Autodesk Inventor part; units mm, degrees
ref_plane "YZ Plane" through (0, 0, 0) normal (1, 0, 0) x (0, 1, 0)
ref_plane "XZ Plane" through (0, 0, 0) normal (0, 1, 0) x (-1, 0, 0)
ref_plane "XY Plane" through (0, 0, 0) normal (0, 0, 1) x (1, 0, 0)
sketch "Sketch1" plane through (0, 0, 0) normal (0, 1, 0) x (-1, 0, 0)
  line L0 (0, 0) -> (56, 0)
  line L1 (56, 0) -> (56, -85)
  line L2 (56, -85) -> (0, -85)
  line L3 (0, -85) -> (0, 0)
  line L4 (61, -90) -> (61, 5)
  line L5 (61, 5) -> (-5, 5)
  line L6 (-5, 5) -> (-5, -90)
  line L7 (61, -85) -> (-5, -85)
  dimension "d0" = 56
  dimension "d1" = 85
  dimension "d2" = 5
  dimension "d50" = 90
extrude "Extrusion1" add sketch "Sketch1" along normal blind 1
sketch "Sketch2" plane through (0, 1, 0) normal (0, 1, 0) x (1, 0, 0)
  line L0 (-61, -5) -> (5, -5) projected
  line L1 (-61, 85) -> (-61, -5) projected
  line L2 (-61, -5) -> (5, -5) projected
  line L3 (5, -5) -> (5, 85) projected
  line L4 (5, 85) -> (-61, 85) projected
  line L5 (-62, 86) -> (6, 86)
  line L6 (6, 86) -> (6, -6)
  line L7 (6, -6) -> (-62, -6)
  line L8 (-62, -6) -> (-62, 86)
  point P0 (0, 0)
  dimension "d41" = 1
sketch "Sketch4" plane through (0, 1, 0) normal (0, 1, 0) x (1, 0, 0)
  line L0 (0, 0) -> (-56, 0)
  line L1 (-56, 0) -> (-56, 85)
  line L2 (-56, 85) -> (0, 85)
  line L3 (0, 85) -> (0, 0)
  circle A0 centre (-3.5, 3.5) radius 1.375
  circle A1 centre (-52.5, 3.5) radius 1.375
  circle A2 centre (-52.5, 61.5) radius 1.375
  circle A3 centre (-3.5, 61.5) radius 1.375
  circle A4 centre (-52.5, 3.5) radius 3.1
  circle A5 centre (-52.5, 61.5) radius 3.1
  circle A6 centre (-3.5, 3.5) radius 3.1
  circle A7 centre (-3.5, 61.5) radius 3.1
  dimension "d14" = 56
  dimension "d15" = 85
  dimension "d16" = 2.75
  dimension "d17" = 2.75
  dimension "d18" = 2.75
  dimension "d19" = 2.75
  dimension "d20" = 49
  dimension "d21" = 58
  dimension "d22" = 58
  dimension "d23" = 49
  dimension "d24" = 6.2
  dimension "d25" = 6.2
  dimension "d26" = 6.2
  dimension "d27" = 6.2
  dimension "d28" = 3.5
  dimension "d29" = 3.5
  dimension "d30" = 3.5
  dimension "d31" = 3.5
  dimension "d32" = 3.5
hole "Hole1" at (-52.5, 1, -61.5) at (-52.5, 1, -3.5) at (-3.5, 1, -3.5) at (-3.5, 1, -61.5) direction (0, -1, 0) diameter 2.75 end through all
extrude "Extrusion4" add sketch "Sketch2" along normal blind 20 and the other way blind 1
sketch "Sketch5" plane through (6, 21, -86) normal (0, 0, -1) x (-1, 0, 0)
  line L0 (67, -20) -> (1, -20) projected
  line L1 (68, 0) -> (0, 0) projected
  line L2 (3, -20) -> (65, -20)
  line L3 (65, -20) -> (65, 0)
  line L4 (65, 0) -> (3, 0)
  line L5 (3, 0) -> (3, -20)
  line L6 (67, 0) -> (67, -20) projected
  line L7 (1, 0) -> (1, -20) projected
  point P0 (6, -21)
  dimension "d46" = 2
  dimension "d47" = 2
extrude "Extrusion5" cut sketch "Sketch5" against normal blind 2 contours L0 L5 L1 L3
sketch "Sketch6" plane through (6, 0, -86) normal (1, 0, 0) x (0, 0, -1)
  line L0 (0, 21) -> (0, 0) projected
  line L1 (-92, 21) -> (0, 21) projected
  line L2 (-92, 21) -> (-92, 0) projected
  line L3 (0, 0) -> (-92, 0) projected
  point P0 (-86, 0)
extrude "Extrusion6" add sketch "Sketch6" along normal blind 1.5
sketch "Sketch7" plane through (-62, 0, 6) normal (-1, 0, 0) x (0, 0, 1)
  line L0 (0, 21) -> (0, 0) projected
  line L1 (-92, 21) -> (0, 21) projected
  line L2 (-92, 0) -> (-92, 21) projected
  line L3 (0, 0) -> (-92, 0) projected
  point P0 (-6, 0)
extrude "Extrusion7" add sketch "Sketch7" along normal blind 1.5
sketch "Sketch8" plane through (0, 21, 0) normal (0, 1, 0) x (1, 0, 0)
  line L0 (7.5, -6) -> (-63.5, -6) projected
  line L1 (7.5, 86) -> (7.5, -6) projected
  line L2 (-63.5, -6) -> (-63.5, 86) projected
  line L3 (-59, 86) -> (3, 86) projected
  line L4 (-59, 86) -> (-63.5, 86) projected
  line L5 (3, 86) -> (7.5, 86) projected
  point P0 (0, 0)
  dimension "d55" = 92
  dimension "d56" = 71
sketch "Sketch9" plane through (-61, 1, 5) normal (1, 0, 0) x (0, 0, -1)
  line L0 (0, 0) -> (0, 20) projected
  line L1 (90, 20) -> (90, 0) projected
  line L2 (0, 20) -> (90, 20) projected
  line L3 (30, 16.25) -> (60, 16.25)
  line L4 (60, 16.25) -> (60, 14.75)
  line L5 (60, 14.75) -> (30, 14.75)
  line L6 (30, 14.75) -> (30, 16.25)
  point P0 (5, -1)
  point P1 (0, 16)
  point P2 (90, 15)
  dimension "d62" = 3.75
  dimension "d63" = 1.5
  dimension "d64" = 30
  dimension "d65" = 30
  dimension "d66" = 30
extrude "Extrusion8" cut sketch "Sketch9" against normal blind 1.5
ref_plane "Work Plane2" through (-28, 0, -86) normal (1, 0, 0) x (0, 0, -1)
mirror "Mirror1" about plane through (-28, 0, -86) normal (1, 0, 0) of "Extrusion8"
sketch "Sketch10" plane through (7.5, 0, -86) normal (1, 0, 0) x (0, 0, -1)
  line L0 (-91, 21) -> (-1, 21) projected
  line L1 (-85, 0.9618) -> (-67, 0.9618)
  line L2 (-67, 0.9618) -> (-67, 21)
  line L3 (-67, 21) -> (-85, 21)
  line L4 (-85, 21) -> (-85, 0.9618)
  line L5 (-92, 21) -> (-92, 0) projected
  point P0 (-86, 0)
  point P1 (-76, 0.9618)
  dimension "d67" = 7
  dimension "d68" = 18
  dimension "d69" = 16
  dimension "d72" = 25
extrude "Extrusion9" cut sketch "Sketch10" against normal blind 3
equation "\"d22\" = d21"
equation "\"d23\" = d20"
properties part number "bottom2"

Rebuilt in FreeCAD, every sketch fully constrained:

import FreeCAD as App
import Part
import Sketcher
Q = App.Units.Quantity

doc = App.newDocument("Part")
body = doc.addObject("PartDesign::Body", "Body")

# Sketch on XZ plane
sketch1 = body.newObject("Sketcher::SketchObject", "Sketch")
sketch1.AttachmentSupport = (doc.getObject("XZ_Plane"), [""])
sketch1.MapMode = "FlatFace"
sketch1.addGeometry(Part.LineSegment(App.Vector(5, -85, 0), App.Vector(-61, -85, 0)), False)
sketch1.addGeometry(Part.LineSegment(App.Vector(-61, -85, 0), App.Vector(-61, 5, 0)), False)
sketch1.addGeometry(Part.LineSegment(App.Vector(-61, 5, 0), App.Vector(5, 5, 0)), False)
sketch1.addGeometry(Part.LineSegment(App.Vector(5, 5, 0), App.Vector(5, -85, 0)), False)
sketch1.addConstraint(Sketcher.Constraint("Coincident", 0, 2, 1, 1))
sketch1.addConstraint(Sketcher.Constraint("Coincident", 1, 2, 2, 1))
sketch1.addConstraint(Sketcher.Constraint("Coincident", 2, 2, 3, 1))
sketch1.addConstraint(Sketcher.Constraint("Coincident", 3, 2, 0, 1))
sketch1.addConstraint(Sketcher.Constraint("Horizontal", 0))
sketch1.addConstraint(Sketcher.Constraint("Vertical", 1))
sketch1.addConstraint(Sketcher.Constraint("Horizontal", 2))
sketch1.addConstraint(Sketcher.Constraint("Vertical", 3))
sketch1.addConstraint(Sketcher.Constraint("DistanceY", 1, 1, 1, 2, Q("90 mm")))
sketch1.addConstraint(Sketcher.Constraint("DistanceY", 0, 2, -1, 1, Q("85 mm")))
sketch1.addConstraint(Sketcher.Constraint("DistanceX", -1, 1, 2, 2, Q("5 mm")))
sketch1.addConstraint(Sketcher.Constraint("DistanceX", 0, 2, 0, 1, Q("66 mm")))
pad1 = body.newObject("PartDesign::Pad", "Pad")
pad1.Profile = sketch1
pad1.Length = 1
pad1.Reversed = True

# Sketch on XZ plane
sketch2 = body.newObject("Sketcher::SketchObject", "Sketch001")
sketch2.AttachmentSupport = (doc.getObject("XZ_Plane"), [""])
sketch2.MapMode = "FlatFace"
sketch2.AttachmentOffset = App.Placement(App.Vector(0, 0, -1), App.Rotation())
sketch2.addGeometry(Part.Circle(App.Vector(-52.5, -61.5, 0), App.Vector(0, 0, 1), 1.4), False)
sketch2.addGeometry(Part.Circle(App.Vector(-52.5, -3.5, 0), App.Vector(0, 0, 1), 1.4), False)
sketch2.addGeometry(Part.Circle(App.Vector(-3.5, -3.5, 0), App.Vector(0, 0, 1), 1.4), False)
sketch2.addGeometry(Part.Circle(App.Vector(-3.5, -61.5, 0), App.Vector(0, 0, 1), 1.4), False)
sketch2.addConstraint(Sketcher.Constraint("Equal", 0, 1))
sketch2.addConstraint(Sketcher.Constraint("Equal", 1, 2))
sketch2.addConstraint(Sketcher.Constraint("Equal", 2, 3))
sketch2.addConstraint(Sketcher.Constraint("Horizontal", 1, 3, 2, 3))
sketch2.addConstraint(Sketcher.Constraint("Horizontal", 0, 3, 3, 3))
sketch2.addConstraint(Sketcher.Constraint("Vertical", 0, 3, 1, 3))
sketch2.addConstraint(Sketcher.Constraint("Vertical", 2, 3, 3, 3))
sketch2.addConstraint(Sketcher.Constraint("Diameter", 0, Q("2.75 mm")))
sketch2.addConstraint(Sketcher.Constraint("DistanceY", 0, 3, 1, 3, Q("58 mm")))
sketch2.addConstraint(Sketcher.Constraint("DistanceX", 1, 3, 2, 3, Q("49 mm")))
sketch2.addConstraint(Sketcher.Constraint("DistanceX", 0, 3, -1, 1, Q("52.5 mm")))
sketch2.addConstraint(Sketcher.Constraint("DistanceY", 0, 3, -1, 1, Q("61.5 mm")))
doc.recompute()
hole = body.newObject("PartDesign::Hole", "Hole")
hole.Profile = sketch2
hole.ThreadType = "None"
hole.Diameter = 2.75
hole.DepthType = "ThroughAll"
hole.Reversed = True

# Sketch on XZ plane
sketch3 = body.newObject("Sketcher::SketchObject", "Sketch002")
sketch3.AttachmentSupport = (doc.getObject("XZ_Plane"), [""])
sketch3.MapMode = "FlatFace"
sketch3.AttachmentOffset = App.Placement(App.Vector(0, 0, -1), App.Rotation())
sketch3.addGeometry(Part.LineSegment(App.Vector(6, -86, 0), App.Vector(-62, -86, 0)), False)
sketch3.addGeometry(Part.LineSegment(App.Vector(-62, -86, 0), App.Vector(-62, 6, 0)), False)
sketch3.addGeometry(Part.LineSegment(App.Vector(-62, 6, 0), App.Vector(6, 6, 0)), False)
sketch3.addGeometry(Part.LineSegment(App.Vector(6, 6, 0), App.Vector(6, -86, 0)), False)
sketch3.addGeometry(Part.LineSegment(App.Vector(5, 5, 0), App.Vector(-61, 5, 0)), False)
sketch3.addGeometry(Part.LineSegment(App.Vector(-61, 5, 0), App.Vector(-61, -85, 0)), False)
sketch3.addGeometry(Part.LineSegment(App.Vector(-61, -85, 0), App.Vector(5, -85, 0)), False)
sketch3.addGeometry(Part.LineSegment(App.Vector(5, -85, 0), App.Vector(5, 5, 0)), False)
sketch3.addConstraint(Sketcher.Constraint("Coincident", 0, 2, 1, 1))
sketch3.addConstraint(Sketcher.Constraint("Coincident", 1, 2, 2, 1))
sketch3.addConstraint(Sketcher.Constraint("Coincident", 2, 2, 3, 1))
sketch3.addConstraint(Sketcher.Constraint("Coincident", 3, 2, 0, 1))
sketch3.addConstraint(Sketcher.Constraint("Coincident", 4, 2, 5, 1))
sketch3.addConstraint(Sketcher.Constraint("Coincident", 5, 2, 6, 1))
sketch3.addConstraint(Sketcher.Constraint("Coincident", 6, 2, 7, 1))
sketch3.addConstraint(Sketcher.Constraint("Coincident", 7, 2, 4, 1))
sketch3.addConstraint(Sketcher.Constraint("Horizontal", 0))
sketch3.addConstraint(Sketcher.Constraint("Vertical", 1))
sketch3.addConstraint(Sketcher.Constraint("Horizontal", 2))
sketch3.addConstraint(Sketcher.Constraint("Vertical", 3))
sketch3.addConstraint(Sketcher.Constraint("Horizontal", 4))
sketch3.addConstraint(Sketcher.Constraint("Vertical", 5))
sketch3.addConstraint(Sketcher.Constraint("Horizontal", 6))
sketch3.addConstraint(Sketcher.Constraint("Vertical", 7))
sketch3.addConstraint(Sketcher.Constraint("DistanceX", 1, 2, 4, 2, Q("1 mm")))
sketch3.addConstraint(Sketcher.Constraint("DistanceY", 4, 2, 1, 2, Q("1 mm")))
sketch3.addConstraint(Sketcher.Constraint("DistanceY", 0, 2, 5, 2, Q("1 mm")))
sketch3.addConstraint(Sketcher.Constraint("DistanceX", 6, 2, 3, 2, Q("1 mm")))
sketch3.addConstraint(Sketcher.Constraint("DistanceX", 0, 2, 0, 1, Q("68 mm")))
sketch3.addConstraint(Sketcher.Constraint("DistanceY", 1, 1, 1, 2, Q("92 mm")))
sketch3.addConstraint(Sketcher.Constraint("DistanceX", 0, 2, -1, 1, Q("62 mm")))
sketch3.addConstraint(Sketcher.Constraint("DistanceY", 0, 2, -1, 1, Q("86 mm")))
pad2 = body.newObject("PartDesign::Pad", "Pad001")
pad2.Profile = sketch3
pad2.Type = "TwoLengths"
pad2.Length = 20
pad2.Length2 = 1
pad2.Reversed = True

# Sketch on XY plane
sketch4 = body.newObject("Sketcher::SketchObject", "Sketch003")
sketch4.AttachmentSupport = (doc.getObject("XY_Plane"), [""])
sketch4.MapMode = "FlatFace"
sketch4.AttachmentOffset = App.Placement(App.Vector(0, 0, -86), App.Rotation())
sketch4.addGeometry(Part.LineSegment(App.Vector(3, 1, 0), App.Vector(-59, 1, 0)), False)
sketch4.addGeometry(Part.LineSegment(App.Vector(-59, 1, 0), App.Vector(-59, 21, 0)), False)
sketch4.addGeometry(Part.LineSegment(App.Vector(-59, 21, 0), App.Vector(3, 21, 0)), False)
sketch4.addGeometry(Part.LineSegment(App.Vector(3, 21, 0), App.Vector(3, 1, 0)), False)
sketch4.addConstraint(Sketcher.Constraint("Coincident", 0, 2, 1, 1))
sketch4.addConstraint(Sketcher.Constraint("Coincident", 1, 2, 2, 1))
sketch4.addConstraint(Sketcher.Constraint("Coincident", 2, 2, 3, 1))
sketch4.addConstraint(Sketcher.Constraint("Coincident", 3, 2, 0, 1))
sketch4.addConstraint(Sketcher.Constraint("Horizontal", 0))
sketch4.addConstraint(Sketcher.Constraint("Vertical", 1))
sketch4.addConstraint(Sketcher.Constraint("Horizontal", 2))
sketch4.addConstraint(Sketcher.Constraint("Vertical", 3))
sketch4.addConstraint(Sketcher.Constraint("DistanceX", 0, 2, 0, 1, Q("62 mm")))
sketch4.addConstraint(Sketcher.Constraint("DistanceY", 1, 1, 1, 2, Q("20 mm")))
sketch4.addConstraint(Sketcher.Constraint("DistanceX", 0, 2, -1, 1, Q("59 mm")))
sketch4.addConstraint(Sketcher.Constraint("DistanceY", -1, 1, 0, 2, Q("1 mm")))
pocket1 = body.newObject("PartDesign::Pocket", "Pocket")
pocket1.Profile = sketch4
pocket1.Length = 2
pocket1.Reversed = True

# Sketch on YZ plane
sketch5 = body.newObject("Sketcher::SketchObject", "Sketch004")
sketch5.AttachmentSupport = (doc.getObject("YZ_Plane"), [""])
sketch5.MapMode = "FlatFace"
sketch5.AttachmentOffset = App.Placement(App.Vector(0, 0, 6), App.Rotation())
sketch5.addGeometry(Part.LineSegment(App.Vector(0, -86, 0), App.Vector(21, -86, 0)), False)
sketch5.addGeometry(Part.LineSegment(App.Vector(21, -86, 0), App.Vector(21, 6, 0)), False)
sketch5.addGeometry(Part.LineSegment(App.Vector(21, 6, 0), App.Vector(0, 6, 0)), False)
sketch5.addGeometry(Part.LineSegment(App.Vector(0, 6, 0), App.Vector(0, -86, 0)), False)
sketch5.addConstraint(Sketcher.Constraint("Coincident", 0, 2, 1, 1))
sketch5.addConstraint(Sketcher.Constraint("Coincident", 1, 2, 2, 1))
sketch5.addConstraint(Sketcher.Constraint("Coincident", 2, 2, 3, 1))
sketch5.addConstraint(Sketcher.Constraint("Coincident", 3, 2, 0, 1))
sketch5.addConstraint(Sketcher.Constraint("Horizontal", 0))
sketch5.addConstraint(Sketcher.Constraint("Vertical", 1))
sketch5.addConstraint(Sketcher.Constraint("Horizontal", 2))
sketch5.addConstraint(Sketcher.Constraint("Vertical", 3))
sketch5.addConstraint(Sketcher.Constraint("PointOnObject", 2, 2, -2))
sketch5.addConstraint(Sketcher.Constraint("DistanceX", 0, 1, 0, 2, Q("21 mm")))
sketch5.addConstraint(Sketcher.Constraint("DistanceY", 1, 1, 1, 2, Q("92 mm")))
sketch5.addConstraint(Sketcher.Constraint("DistanceY", 0, 2, -1, 1, Q("86 mm")))
pad3 = body.newObject("PartDesign::Pad", "Pad002")
pad3.Profile = sketch5
pad3.Length = 1.5

# Sketch on YZ plane
sketch6 = body.newObject("Sketcher::SketchObject", "Sketch005")
sketch6.AttachmentSupport = (doc.getObject("YZ_Plane"), [""])
sketch6.MapMode = "FlatFace"
sketch6.AttachmentOffset = App.Placement(App.Vector(0, 0, -62), App.Rotation())
sketch6.addGeometry(Part.LineSegment(App.Vector(0, 6, 0), App.Vector(21, 6, 0)), False)
sketch6.addGeometry(Part.LineSegment(App.Vector(21, 6, 0), App.Vector(21, -86, 0)), False)
sketch6.addGeometry(Part.LineSegment(App.Vector(21, -86, 0), App.Vector(0, -86, 0)), False)
sketch6.addGeometry(Part.LineSegment(App.Vector(0, -86, 0), App.Vector(0, 6, 0)), False)
sketch6.addConstraint(Sketcher.Constraint("Coincident", 0, 2, 1, 1))
sketch6.addConstraint(Sketcher.Constraint("Coincident", 1, 2, 2, 1))
sketch6.addConstraint(Sketcher.Constraint("Coincident", 2, 2, 3, 1))
sketch6.addConstraint(Sketcher.Constraint("Coincident", 3, 2, 0, 1))
sketch6.addConstraint(Sketcher.Constraint("Horizontal", 0))
sketch6.addConstraint(Sketcher.Constraint("Vertical", 1))
sketch6.addConstraint(Sketcher.Constraint("Horizontal", 2))
sketch6.addConstraint(Sketcher.Constraint("Vertical", 3))
sketch6.addConstraint(Sketcher.Constraint("PointOnObject", 2, 2, -2))
sketch6.addConstraint(Sketcher.Constraint("DistanceX", 0, 1, 0, 2, Q("21 mm")))
sketch6.addConstraint(Sketcher.Constraint("DistanceY", 1, 2, 1, 1, Q("92 mm")))
sketch6.addConstraint(Sketcher.Constraint("DistanceY", -1, 1, 0, 2, Q("6 mm")))
pad4 = body.newObject("PartDesign::Pad", "Pad003")
pad4.Profile = sketch6
pad4.Length = 1.5
pad4.Reversed = True

# Sketch on YZ plane
sketch7 = body.newObject("Sketcher::SketchObject", "Sketch006")
sketch7.AttachmentSupport = (doc.getObject("YZ_Plane"), [""])
sketch7.MapMode = "FlatFace"
sketch7.AttachmentOffset = App.Placement(App.Vector(0, 0, -61), App.Rotation())
sketch7.addGeometry(Part.LineSegment(App.Vector(17.2, -55, 0), App.Vector(17.2, -25, 0)), False)
sketch7.addGeometry(Part.LineSegment(App.Vector(17.2, -25, 0), App.Vector(15.8, -25, 0)), False)
sketch7.addGeometry(Part.LineSegment(App.Vector(15.8, -25, 0), App.Vector(15.8, -55, 0)), False)
sketch7.addGeometry(Part.LineSegment(App.Vector(15.8, -55, 0), App.Vector(17.2, -55, 0)), False)
sketch7.addConstraint(Sketcher.Constraint("Coincident", 0, 2, 1, 1))
sketch7.addConstraint(Sketcher.Constraint("Coincident", 1, 2, 2, 1))
sketch7.addConstraint(Sketcher.Constraint("Coincident", 2, 2, 3, 1))
sketch7.addConstraint(Sketcher.Constraint("Coincident", 3, 2, 0, 1))
sketch7.addConstraint(Sketcher.Constraint("Vertical", 0))
sketch7.addConstraint(Sketcher.Constraint("Horizontal", 1))
sketch7.addConstraint(Sketcher.Constraint("Vertical", 2))
sketch7.addConstraint(Sketcher.Constraint("Horizontal", 3))
sketch7.addConstraint(Sketcher.Constraint("DistanceY", 0, 1, 0, 2, Q("30 mm")))
sketch7.addConstraint(Sketcher.Constraint("DistanceX", 1, 2, 1, 1, Q("1.5 mm")))
sketch7.addConstraint(Sketcher.Constraint("DistanceY", 0, 2, -1, 1, Q("25 mm")))
sketch7.addConstraint(Sketcher.Constraint("DistanceX", -1, 1, 0, 2, Q("17.25 mm")))
pocket2 = body.newObject("PartDesign::Pocket", "Pocket001")
pocket2.Profile = sketch7
pocket2.Length = 1.5
doc.recompute()

datumplane = body.newObject("PartDesign::Plane", "DatumPlane")
datumplane.AttachmentSupport = (doc.getObject("YZ_Plane"), [""])
datumplane.MapMode = "FlatFace"
datumplane.AttachmentOffset = App.Placement(App.Vector(0, 0, -28), App.Rotation())
mirrored = body.newObject("PartDesign::Mirrored", "Mirrored")
mirrored.Originals = [pocket2]
mirrored.MirrorPlane = (datumplane, [""])
body.Tip = mirrored

# Sketch on YZ plane
sketch8 = body.newObject("Sketcher::SketchObject", "Sketch007")
sketch8.AttachmentSupport = (doc.getObject("YZ_Plane"), [""])
sketch8.MapMode = "FlatFace"
sketch8.AttachmentOffset = App.Placement(App.Vector(0, 0, 7.5), App.Rotation())
sketch8.addGeometry(Part.LineSegment(App.Vector(21, -19, 0), App.Vector(21, -1, 0)), False)
sketch8.addGeometry(Part.LineSegment(App.Vector(21, -1, 0), App.Vector(1, -1, 0)), False)
sketch8.addGeometry(Part.LineSegment(App.Vector(1, -1, 0), App.Vector(1, -19, 0)), False)
sketch8.addGeometry(Part.LineSegment(App.Vector(1, -19, 0), App.Vector(21, -19, 0)), False)
sketch8.addConstraint(Sketcher.Constraint("Coincident", 0, 2, 1, 1))
sketch8.addConstraint(Sketcher.Constraint("Coincident", 1, 2, 2, 1))
sketch8.addConstraint(Sketcher.Constraint("Coincident", 2, 2, 3, 1))
sketch8.addConstraint(Sketcher.Constraint("Coincident", 3, 2, 0, 1))
sketch8.addConstraint(Sketcher.Constraint("Vertical", 0))
sketch8.addConstraint(Sketcher.Constraint("Horizontal", 1))
sketch8.addConstraint(Sketcher.Constraint("Vertical", 2))
sketch8.addConstraint(Sketcher.Constraint("Horizontal", 3))
sketch8.addConstraint(Sketcher.Constraint("DistanceY", 0, 1, 0, 2, Q("18 mm")))
sketch8.addConstraint(Sketcher.Constraint("DistanceX", -1, 1, 0, 2, Q("21 mm")))
sketch8.addConstraint(Sketcher.Constraint("DistanceY", 0, 2, -1, 1, Q("1 mm")))
sketch8.addConstraint(Sketcher.Constraint("DistanceX", 1, 2, 1, 1, Q("20.0382 mm")))
pocket3 = body.newObject("PartDesign::Pocket", "Pocket002")
pocket3.Profile = sketch8
pocket3.Length = 3

doc.recompute()
